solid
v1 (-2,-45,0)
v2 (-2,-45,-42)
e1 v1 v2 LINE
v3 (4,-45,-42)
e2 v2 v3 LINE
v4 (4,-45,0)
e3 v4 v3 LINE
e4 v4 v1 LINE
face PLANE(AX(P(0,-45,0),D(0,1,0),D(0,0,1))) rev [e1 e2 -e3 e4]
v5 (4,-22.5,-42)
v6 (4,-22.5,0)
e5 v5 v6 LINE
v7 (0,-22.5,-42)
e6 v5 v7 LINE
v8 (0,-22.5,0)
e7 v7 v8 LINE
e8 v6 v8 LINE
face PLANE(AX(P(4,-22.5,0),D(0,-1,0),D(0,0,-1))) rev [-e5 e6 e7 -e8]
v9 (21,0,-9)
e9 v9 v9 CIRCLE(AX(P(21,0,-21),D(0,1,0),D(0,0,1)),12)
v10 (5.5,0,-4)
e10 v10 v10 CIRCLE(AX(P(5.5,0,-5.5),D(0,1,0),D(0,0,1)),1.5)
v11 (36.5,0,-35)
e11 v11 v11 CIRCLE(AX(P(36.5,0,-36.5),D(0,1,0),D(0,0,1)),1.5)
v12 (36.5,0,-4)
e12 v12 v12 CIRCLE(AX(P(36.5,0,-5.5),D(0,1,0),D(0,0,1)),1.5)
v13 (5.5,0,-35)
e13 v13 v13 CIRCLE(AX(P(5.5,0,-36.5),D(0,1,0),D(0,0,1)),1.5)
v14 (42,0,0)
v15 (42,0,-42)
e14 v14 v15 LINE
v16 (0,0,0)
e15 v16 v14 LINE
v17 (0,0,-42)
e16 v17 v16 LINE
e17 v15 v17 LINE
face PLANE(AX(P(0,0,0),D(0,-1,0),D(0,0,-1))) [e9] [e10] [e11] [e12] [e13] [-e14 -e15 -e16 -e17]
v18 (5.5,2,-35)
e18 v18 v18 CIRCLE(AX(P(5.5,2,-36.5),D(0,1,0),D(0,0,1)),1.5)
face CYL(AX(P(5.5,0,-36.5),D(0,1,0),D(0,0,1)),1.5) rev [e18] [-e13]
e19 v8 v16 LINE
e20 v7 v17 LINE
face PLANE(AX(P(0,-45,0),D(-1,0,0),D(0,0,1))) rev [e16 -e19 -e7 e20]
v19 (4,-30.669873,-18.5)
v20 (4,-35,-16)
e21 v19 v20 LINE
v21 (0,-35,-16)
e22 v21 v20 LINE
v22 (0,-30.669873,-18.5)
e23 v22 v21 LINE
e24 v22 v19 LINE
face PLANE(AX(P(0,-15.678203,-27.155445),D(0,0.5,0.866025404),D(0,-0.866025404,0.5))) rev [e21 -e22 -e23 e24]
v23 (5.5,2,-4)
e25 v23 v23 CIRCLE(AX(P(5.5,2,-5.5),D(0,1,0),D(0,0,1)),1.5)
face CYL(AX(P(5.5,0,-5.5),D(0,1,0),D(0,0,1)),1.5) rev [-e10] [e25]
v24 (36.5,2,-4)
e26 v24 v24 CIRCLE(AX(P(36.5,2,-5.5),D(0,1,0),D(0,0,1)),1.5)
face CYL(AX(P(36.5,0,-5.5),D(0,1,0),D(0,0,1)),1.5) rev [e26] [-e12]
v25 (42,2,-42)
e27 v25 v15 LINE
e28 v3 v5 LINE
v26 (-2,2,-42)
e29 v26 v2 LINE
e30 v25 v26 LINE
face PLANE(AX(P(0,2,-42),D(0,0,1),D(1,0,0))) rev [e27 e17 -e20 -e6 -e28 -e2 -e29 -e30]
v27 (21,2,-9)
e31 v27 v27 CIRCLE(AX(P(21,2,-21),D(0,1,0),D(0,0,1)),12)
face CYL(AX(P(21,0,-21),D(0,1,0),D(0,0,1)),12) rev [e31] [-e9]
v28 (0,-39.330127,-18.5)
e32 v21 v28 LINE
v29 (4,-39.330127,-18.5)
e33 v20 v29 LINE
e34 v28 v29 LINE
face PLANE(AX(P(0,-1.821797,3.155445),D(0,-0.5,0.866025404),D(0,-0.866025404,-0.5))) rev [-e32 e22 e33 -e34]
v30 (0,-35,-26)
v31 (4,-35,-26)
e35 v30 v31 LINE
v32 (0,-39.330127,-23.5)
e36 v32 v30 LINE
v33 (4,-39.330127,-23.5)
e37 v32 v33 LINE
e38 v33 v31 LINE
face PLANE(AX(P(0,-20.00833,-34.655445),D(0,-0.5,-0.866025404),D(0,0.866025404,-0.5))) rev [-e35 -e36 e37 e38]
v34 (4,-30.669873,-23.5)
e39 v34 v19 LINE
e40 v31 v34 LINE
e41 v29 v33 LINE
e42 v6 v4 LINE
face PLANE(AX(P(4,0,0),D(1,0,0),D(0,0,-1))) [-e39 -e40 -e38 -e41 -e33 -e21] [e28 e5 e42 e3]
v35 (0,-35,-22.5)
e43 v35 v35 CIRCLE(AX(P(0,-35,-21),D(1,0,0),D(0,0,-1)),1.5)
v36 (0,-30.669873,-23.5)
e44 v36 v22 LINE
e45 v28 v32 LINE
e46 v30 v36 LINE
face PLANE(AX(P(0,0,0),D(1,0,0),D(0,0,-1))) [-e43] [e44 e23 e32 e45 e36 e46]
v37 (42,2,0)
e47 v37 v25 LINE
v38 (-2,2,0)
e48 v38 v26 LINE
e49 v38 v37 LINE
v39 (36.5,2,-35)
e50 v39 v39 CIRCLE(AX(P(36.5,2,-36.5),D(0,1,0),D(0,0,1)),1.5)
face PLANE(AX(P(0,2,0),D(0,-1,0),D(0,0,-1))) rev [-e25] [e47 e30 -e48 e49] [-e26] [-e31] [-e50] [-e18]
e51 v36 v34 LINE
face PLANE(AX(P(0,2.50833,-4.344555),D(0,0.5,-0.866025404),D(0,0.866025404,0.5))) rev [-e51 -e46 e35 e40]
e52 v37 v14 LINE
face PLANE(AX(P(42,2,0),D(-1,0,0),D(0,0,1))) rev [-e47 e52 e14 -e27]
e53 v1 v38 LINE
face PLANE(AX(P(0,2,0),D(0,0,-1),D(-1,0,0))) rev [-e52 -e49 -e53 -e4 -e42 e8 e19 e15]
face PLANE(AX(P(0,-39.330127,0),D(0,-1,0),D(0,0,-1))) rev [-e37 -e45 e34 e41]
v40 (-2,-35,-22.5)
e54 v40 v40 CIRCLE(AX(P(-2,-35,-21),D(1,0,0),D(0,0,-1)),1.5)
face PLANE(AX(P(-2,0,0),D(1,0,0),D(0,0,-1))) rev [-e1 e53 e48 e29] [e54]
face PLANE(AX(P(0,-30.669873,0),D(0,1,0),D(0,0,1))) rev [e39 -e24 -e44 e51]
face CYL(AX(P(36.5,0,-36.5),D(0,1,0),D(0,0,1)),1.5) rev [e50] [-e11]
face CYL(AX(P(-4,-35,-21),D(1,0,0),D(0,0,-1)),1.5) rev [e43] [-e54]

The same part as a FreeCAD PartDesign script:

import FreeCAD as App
import Part
import Sketcher
from FreeCAD import Vector
Q = App.Units.Quantity


def add_polygon(sketch, points):
    """Adds a closed chain of lines whose ends are joined by coincident constraints."""
    first, n = sketch.GeometryCount, len(points)
    for a, b in zip(points, points[1:] + points[:1]):
        sketch.addGeometry(Part.LineSegment(App.Vector(*a, 0), App.Vector(*b, 0)), False)
    for i in range(n):
        sketch.addConstraint(Sketcher.Constraint("Coincident", first + i, 2, first + (i + 1) % n, 1))

doc = App.newDocument("Part")
body = doc.addObject("PartDesign::Body", "Body")

# Sketch on XZ plane
sketch1 = body.newObject("Sketcher::SketchObject", "Sketch")
sketch1.AttachmentSupport = (doc.getObject("XZ_Plane"), [""])
sketch1.MapMode = "FlatFace"
add_polygon(sketch1, [(0, -42), (0, 0), (42, 0), (42, -42)])  # lines 0-3
sketch1.addConstraint(Sketcher.Constraint("Vertical", 0))
sketch1.addConstraint(Sketcher.Constraint("Horizontal", 1))
sketch1.addConstraint(Sketcher.Constraint("Vertical", 2))
sketch1.addConstraint(Sketcher.Constraint("Horizontal", 3))
sketch1.addConstraint(Sketcher.Constraint("Coincident", 0, 2, -1, 1))
sketch1.addConstraint(Sketcher.Constraint("Equal", 3, 0))
sketch1.addConstraint(Sketcher.Constraint("DistanceX", 1, 1, 1, 2, 42.0))
pad1 = body.newObject("PartDesign::Pad", "Pad")
pad1.Profile = sketch1
pad1.Length = 2
pad1.Reversed = True

# Sketch on XZ plane
sketch2 = body.newObject("Sketcher::SketchObject", "Sketch001")
sketch2.AttachmentSupport = (doc.getObject("XZ_Plane"), [""])
sketch2.MapMode = "FlatFace"
sketch2.AttachmentOffset = App.Placement(Vector(0, 0, -2), App.Rotation())
sketch2.addGeometry(Part.Circle(Vector(21, -21, 0), Vector(0, 0, 1), 12), False)
sketch2.addGeometry(Part.Circle(Vector(36.5, -36.5, 0), Vector(0, 0, 1), 1.5), False)
sketch2.addGeometry(Part.Circle(Vector(36.5, -5.5, 0), Vector(0, 0, 1), 1.5), False)
sketch2.addGeometry(Part.Circle(Vector(5.5, -5.5, 0), Vector(0, 0, 1), 1.5), False)
sketch2.addGeometry(Part.Circle(Vector(5.5, -36.5, 0), Vector(0, 0, 1), 1.5), False)
sketch2.addConstraint(Sketcher.Constraint("Equal", 1, 2))
sketch2.addConstraint(Sketcher.Constraint("Equal", 2, 3))
sketch2.addConstraint(Sketcher.Constraint("Equal", 3, 4))
sketch2.addConstraint(Sketcher.Constraint("Horizontal", 2, 3, 3, 3))
sketch2.addConstraint(Sketcher.Constraint("Horizontal", 1, 3, 4, 3))
sketch2.addConstraint(Sketcher.Constraint("Vertical", 1, 3, 2, 3))
sketch2.addConstraint(Sketcher.Constraint("Vertical", 3, 3, 4, 3))
sketch2.addConstraint(Sketcher.Constraint("Diameter", 0, 24.0))
sketch2.addConstraint(Sketcher.Constraint("Diameter", 1, 3.0))
sketch2.addConstraint(Sketcher.Constraint("DistanceX", -1, 1, 0, 3, 21.0))
sketch2.addConstraint(Sketcher.Constraint("DistanceY", 0, 3, -1, 1, 21.0))
sketch2.addConstraint(Sketcher.Constraint("DistanceY", 1, 3, 2, 3, 31.0))
sketch2.addConstraint(Sketcher.Constraint("DistanceX", 3, 3, 2, 3, 31.0))
sketch2.addConstraint(Sketcher.Constraint("DistanceX", -1, 1, 1, 3, 36.5))
sketch2.addConstraint(Sketcher.Constraint("DistanceY", 1, 3, -1, 1, 36.5))
pocket1 = body.newObject("PartDesign::Pocket", "Pocket")
pocket1.Profile = sketch2
pocket1.Length = 2
pocket1.Reversed = True

# Sketch on YZ plane
sketch3 = body.newObject("Sketcher::SketchObject", "Sketch002")
sketch3.AttachmentSupport = (doc.getObject("YZ_Plane"), [""])
sketch3.MapMode = "FlatFace"
add_polygon(sketch3, [(2, -42), (0, -42), (0, 0), (2, 0)])  # lines 0-3
sketch3.addConstraint(Sketcher.Constraint("Horizontal", 0))
sketch3.addConstraint(Sketcher.Constraint("Vertical", 1))
sketch3.addConstraint(Sketcher.Constraint("Horizontal", 2))
sketch3.addConstraint(Sketcher.Constraint("Vertical", 3))
sketch3.addConstraint(Sketcher.Constraint("Coincident", 1, 2, -1, 1))
sketch3.addConstraint(Sketcher.Constraint("DistanceX", 0, 2, 0, 1, 2.0))
sketch3.addConstraint(Sketcher.Constraint("DistanceY", 1, 1, 1, 2, 42.0))
pad2 = body.newObject("PartDesign::Pad", "Pad001")
pad2.Profile = sketch3
pad2.Length = 2
pad2.Reversed = True

# Sketch on XZ plane
sketch4 = body.newObject("Sketcher::SketchObject", "Sketch003")
sketch4.AttachmentSupport = (doc.getObject("XZ_Plane"), [""])
sketch4.MapMode = "FlatFace"
add_polygon(sketch4, [(-2, 0), (-2, -42), (0, -42), (0, 0)])  # lines 0-3
sketch4.addConstraint(Sketcher.Constraint("Vertical", 0))
sketch4.addConstraint(Sketcher.Constraint("Horizontal", 1))
sketch4.addConstraint(Sketcher.Constraint("Vertical", 2))
sketch4.addConstraint(Sketcher.Constraint("Horizontal", 3))
sketch4.addConstraint(Sketcher.Constraint("Coincident", 2, 2, -1, 1))
sketch4.addConstraint(Sketcher.Constraint("DistanceX", 1, 1, 1, 2, 2.0))
sketch4.addConstraint(Sketcher.Constraint("DistanceY", 0, 2, 0, 1, 42.0))
pad3 = body.newObject("PartDesign::Pad", "Pad002")
pad3.Profile = sketch4
pad3.Length = 45

# Sketch on YZ plane
sketch5 = body.newObject("Sketcher::SketchObject", "Sketch004")
sketch5.AttachmentSupport = (doc.getObject("YZ_Plane"), [""])
sketch5.MapMode = "FlatFace"
add_polygon(sketch5, [(-22, 0), (-45, 0), (-45, -42), (-22, -42)])  # lines 0-3
sketch5.addConstraint(Sketcher.Constraint("Horizontal", 0))
sketch5.addConstraint(Sketcher.Constraint("Vertical", 1))
sketch5.addConstraint(Sketcher.Constraint("Horizontal", 2))
sketch5.addConstraint(Sketcher.Constraint("Vertical", 3))
sketch5.addConstraint(Sketcher.Constraint("PointOnObject", 0, 2, -1))
sketch5.addConstraint(Sketcher.Constraint("DistanceY", 1, 2, 1, 1, 42.0))
sketch5.addConstraint(Sketcher.Constraint("DistanceX", 0, 2, 0, 1, 22.5))
sketch5.addConstraint(Sketcher.Constraint("DistanceX", 0, 2, -1, 1, 45.0))
pad4 = body.newObject("PartDesign::Pad", "Pad003")
pad4.Profile = sketch5
pad4.Length = 4

# Sketch on YZ plane
sketch6 = body.newObject("Sketcher::SketchObject", "Sketch005")
sketch6.AttachmentSupport = (doc.getObject("YZ_Plane"), [""])
sketch6.MapMode = "FlatFace"
sketch6.AttachmentOffset = App.Placement(Vector(0, 0, 4), App.Rotation())
add_polygon(sketch6, [(-35, -26), (-31, -24), (-31, -18), (-35, -16), (-39, -18), (-39, -24)])  # lines 0-5
sketch6.addConstraint(Sketcher.Constraint("Vertical", 1))
sketch6.addConstraint(Sketcher.Constraint("Vertical", 4))
sketch6.addConstraint(Sketcher.Constraint("Parallel", 0, 3))
sketch6.addConstraint(Sketcher.Constraint("Parallel", 2, 5))
sketch6.addConstraint(Sketcher.Constraint("Horizontal", 1, 2, 3, 2))
sketch6.addConstraint(Sketcher.Constraint("Horizontal", 0, 2, 4, 2))
sketch6.addConstraint(Sketcher.Constraint("Vertical", 2, 2, 5, 2))
sketch6.addConstraint(Sketcher.Constraint("DistanceY", 1, 1, 1, 2, 5.0))
sketch6.addConstraint(Sketcher.Constraint("Angle", 0, Q("30 deg")))
sketch6.addConstraint(Sketcher.Constraint("Distance", 0, 5.0))
sketch6.addConstraint(Sketcher.Constraint("DistanceX", 2, 2, -1, 1, 35.0))
sketch6.addConstraint(Sketcher.Constraint("DistanceY", 2, 2, -1, 1, 16.0))
pocket2 = body.newObject("PartDesign::Pocket", "Pocket001")
pocket2.Profile = sketch6
pocket2.Length = 4

# Sketch on YZ plane
sketch7 = body.newObject("Sketcher::SketchObject", "Sketch006")
sketch7.AttachmentSupport = (doc.getObject("YZ_Plane"), [""])
sketch7.MapMode = "FlatFace"
sketch7.addGeometry(Part.Circle(Vector(-35, -21, 0), Vector(0, 0, 1), 1.5), False)
sketch7.addConstraint(Sketcher.Constraint("Diameter", 0, 3.0))
sketch7.addConstraint(Sketcher.Constraint("DistanceX", 0, 3, -1, 1, 35.0))
sketch7.addConstraint(Sketcher.Constraint("DistanceY", 0, 3, -1, 1, 21.0))
pocket3 = body.newObject("PartDesign::Pocket", "Pocket002")
pocket3.Profile = sketch7
pocket3.Length = 4

doc.recompute()
